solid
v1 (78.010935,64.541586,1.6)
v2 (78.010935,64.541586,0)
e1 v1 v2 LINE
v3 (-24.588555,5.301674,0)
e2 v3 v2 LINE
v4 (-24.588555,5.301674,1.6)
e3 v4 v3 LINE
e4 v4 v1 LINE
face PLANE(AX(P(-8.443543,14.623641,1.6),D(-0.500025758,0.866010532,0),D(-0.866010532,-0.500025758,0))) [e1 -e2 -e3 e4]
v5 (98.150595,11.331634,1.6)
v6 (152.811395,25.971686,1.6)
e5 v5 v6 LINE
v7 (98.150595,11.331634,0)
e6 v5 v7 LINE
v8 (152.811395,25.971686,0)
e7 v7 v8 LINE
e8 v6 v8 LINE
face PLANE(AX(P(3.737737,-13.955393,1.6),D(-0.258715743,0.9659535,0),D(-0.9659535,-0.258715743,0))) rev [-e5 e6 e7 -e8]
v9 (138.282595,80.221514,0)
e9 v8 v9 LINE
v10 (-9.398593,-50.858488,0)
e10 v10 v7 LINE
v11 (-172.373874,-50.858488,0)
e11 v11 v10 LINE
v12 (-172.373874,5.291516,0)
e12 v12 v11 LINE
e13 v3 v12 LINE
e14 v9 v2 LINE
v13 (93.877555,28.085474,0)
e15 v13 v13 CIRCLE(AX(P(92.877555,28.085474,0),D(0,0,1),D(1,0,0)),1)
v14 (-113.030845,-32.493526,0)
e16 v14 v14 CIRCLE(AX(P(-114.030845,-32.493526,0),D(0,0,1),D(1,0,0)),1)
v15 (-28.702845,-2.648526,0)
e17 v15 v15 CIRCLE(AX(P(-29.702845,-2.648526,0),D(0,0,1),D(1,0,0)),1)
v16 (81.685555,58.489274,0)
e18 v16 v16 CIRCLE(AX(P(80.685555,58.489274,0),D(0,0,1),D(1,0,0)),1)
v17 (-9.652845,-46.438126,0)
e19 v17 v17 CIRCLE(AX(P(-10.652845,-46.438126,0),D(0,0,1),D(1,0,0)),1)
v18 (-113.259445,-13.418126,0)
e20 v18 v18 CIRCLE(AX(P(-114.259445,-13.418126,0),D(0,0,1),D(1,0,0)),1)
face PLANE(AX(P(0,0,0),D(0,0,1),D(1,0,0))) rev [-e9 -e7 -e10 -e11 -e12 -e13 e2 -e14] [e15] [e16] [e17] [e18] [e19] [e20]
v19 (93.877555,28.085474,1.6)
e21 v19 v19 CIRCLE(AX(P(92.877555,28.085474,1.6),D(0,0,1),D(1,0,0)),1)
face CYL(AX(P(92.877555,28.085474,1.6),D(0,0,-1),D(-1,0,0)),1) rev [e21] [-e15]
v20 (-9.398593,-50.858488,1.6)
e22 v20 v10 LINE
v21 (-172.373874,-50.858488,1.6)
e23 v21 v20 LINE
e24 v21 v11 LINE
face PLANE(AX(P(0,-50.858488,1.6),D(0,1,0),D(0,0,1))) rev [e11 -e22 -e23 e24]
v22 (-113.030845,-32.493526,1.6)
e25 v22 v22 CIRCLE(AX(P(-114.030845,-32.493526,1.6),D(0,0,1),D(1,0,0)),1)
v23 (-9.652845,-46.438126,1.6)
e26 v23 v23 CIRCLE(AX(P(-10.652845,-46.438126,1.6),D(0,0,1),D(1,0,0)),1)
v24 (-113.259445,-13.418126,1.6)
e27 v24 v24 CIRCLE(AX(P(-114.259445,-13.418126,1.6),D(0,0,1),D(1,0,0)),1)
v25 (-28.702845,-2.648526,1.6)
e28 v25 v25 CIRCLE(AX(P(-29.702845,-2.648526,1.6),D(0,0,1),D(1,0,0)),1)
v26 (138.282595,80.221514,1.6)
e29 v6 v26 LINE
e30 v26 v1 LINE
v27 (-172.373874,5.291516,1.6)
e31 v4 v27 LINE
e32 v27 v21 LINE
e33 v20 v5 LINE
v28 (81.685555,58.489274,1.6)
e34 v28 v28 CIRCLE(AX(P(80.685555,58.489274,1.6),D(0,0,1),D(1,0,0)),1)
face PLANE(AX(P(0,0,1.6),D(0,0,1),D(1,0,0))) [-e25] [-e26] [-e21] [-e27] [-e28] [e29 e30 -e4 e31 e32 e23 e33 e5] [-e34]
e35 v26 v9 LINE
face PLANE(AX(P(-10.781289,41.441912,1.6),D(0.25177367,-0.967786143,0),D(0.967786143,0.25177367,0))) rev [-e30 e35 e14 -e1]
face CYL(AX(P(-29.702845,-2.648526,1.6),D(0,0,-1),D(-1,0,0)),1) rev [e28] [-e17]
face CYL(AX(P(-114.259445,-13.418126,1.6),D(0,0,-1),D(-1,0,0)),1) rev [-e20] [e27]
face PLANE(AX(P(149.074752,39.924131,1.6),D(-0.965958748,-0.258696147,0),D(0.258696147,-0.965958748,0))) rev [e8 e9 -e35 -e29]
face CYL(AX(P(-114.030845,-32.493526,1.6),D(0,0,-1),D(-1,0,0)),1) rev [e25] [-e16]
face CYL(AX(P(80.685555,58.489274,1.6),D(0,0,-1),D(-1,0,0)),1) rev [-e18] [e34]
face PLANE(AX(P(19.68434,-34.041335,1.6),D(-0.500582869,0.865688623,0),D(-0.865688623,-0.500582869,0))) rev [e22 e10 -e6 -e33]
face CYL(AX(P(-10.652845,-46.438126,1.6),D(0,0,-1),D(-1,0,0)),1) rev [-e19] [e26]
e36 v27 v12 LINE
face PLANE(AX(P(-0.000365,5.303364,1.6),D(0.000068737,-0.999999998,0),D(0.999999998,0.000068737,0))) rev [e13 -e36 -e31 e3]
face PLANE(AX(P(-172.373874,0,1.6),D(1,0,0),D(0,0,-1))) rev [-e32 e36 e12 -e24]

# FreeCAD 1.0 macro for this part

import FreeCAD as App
import Part
import Sketcher

V = App.Vector
Q = App.Units.Quantity


def add_polygon(sketch, points):
    """Adds a closed chain of lines whose ends are joined by coincident constraints."""
    first, n = sketch.GeometryCount, len(points)
    for a, b in zip(points, points[1:] + points[:1]):
        sketch.addGeometry(Part.LineSegment(App.Vector(*a, 0), App.Vector(*b, 0)), False)
    for i in range(n):
        sketch.addConstraint(Sketcher.Constraint("Coincident", first + i, 2, first + (i + 1) % n, 1))

doc = App.newDocument("Part")
params = doc.addObject("Spreadsheet::Sheet", "Params")
for row, (alias, value) in enumerate([
    ("sketch1_diameter", "2 mm"),
    ("pad1_length", "1.6 mm"),
], start=1):
    params.set(f"A{row}", alias)
    params.set(f"B{row}", "=" + value)
    params.setAlias(f"B{row}", alias)

body = doc.addObject("PartDesign::Body", "Body")

# Sketch on XY plane
sketch1 = body.newObject("Sketcher::SketchObject", "Sketch")
sketch1.AttachmentSupport = (doc.getObject("XY_Plane"), [""])
sketch1.MapMode = "FlatFace"
add_polygon(sketch1, [(98.2, 11.3), (152.8, 26), (138.3, 80.2), (78, 64.5), (-24.6, 5.3), (-151.6, 5.3), (-172.4, 5.3), (-172.4, -50.9), (-9.4, -50.9)])  # lines 0-8
sketch1.addGeometry(Part.Circle(V(-114, -32.5, 0), V(0, 0, 1), 1), False)  # 9
sketch1.addGeometry(Part.Circle(V(-114.3, -13.4, 0), V(0, 0, 1), 1), False)  # 10
sketch1.addGeometry(Part.Circle(V(-29.7, -2.6, 0), V(0, 0, 1), 1), False)  # 11
sketch1.addGeometry(Part.Circle(V(-10.7, -46.4, 0), V(0, 0, 1), 1), False)  # 12
sketch1.addGeometry(Part.Circle(V(92.9, 28.1, 0), V(0, 0, 1), 1), False)  # 13
sketch1.addGeometry(Part.Circle(V(80.7, 58.5, 0), V(0, 0, 1), 1), False)  # 14
sketch1.addConstraint([
    Sketcher.Constraint("Vertical", 6),
    Sketcher.Constraint("Horizontal", 7),
    Sketcher.Constraint("Equal", 9, 10),
    Sketcher.Constraint("Equal", 10, 11),
    Sketcher.Constraint("Equal", 11, 12),
    Sketcher.Constraint("Equal", 12, 13),
    Sketcher.Constraint("Equal", 13, 14),
    Sketcher.Constraint("Parallel", 4, 5),
    Sketcher.Constraint("Diameter", 9, Q("2 mm")),
    Sketcher.Constraint("DistanceX", 11, 3, 12, 3, Q("19.05 mm")),
    Sketcher.Constraint("DistanceY", 12, 3, 10, 3, Q("33.02 mm")),
    Sketcher.Constraint("DistanceX", 9, 3, 11, 3, Q("84.328 mm")),
    Sketcher.Constraint("DistanceY", 9, 3, 11, 3, Q("29.845 mm")),
    Sketcher.Constraint("DistanceY", 11, 3, 13, 3, Q("30.734 mm")),
    Sketcher.Constraint("DistanceX", 10, 3, 13, 3, Q("207.137 mm")),
    Sketcher.Constraint("DistanceX", 14, 3, 13, 3, Q("12.192 mm")),
    Sketcher.Constraint("DistanceX", 8, 2, 1, 2, Q("40.132 mm")),
    Sketcher.Constraint("DistanceX", 7, 1, 7, 2, Q("162.975281 mm")),
    Sketcher.Constraint("DistanceX", 10, 3, 9, 3, Q("0.2286 mm")),
    Sketcher.Constraint("DistanceY", 9, 3, 10, 3, Q("19.0754 mm")),
    Sketcher.Constraint("DistanceY", 13, 3, 14, 3, Q("30.4038 mm")),
    Sketcher.Constraint("DistanceX", 1, 2, 0, 2, Q("14.5288 mm")),
    Sketcher.Constraint("DistanceY", 0, 2, 2, 2, Q("38.5699 mm")),
    Sketcher.Constraint("DistanceY", 11, 3, 3, 2, Q("7.9502 mm")),
    Sketcher.Constraint("Distance", 1, Q("56.161641 mm")),
    Sketcher.Constraint("Distance", 2, Q("62.27787 mm")),
    Sketcher.Constraint("Distance", 3, Q("118.473721 mm")),
    Sketcher.Constraint("Distance", 8, Q("124.235418 mm")),
    Sketcher.Constraint("DistanceY", 6, 2, 6, 1, Q("56.150004 mm")),
    Sketcher.Constraint("DistanceX", 13, 3, 0, 2, Q("59.93384 mm")),
    Sketcher.Constraint("DistanceY", 0, 2, 13, 3, Q("2.113788 mm")),
    Sketcher.Constraint("DistanceY", 10, 3, 4, 2, Q("18.711069 mm")),
    Sketcher.Constraint("DistanceX", 5, 2, 10, 3, Q("58.114429 mm")),
    Sketcher.Constraint("Distance", 4, Q("127.020203 mm")),
    Sketcher.Constraint("DistanceX", 9, 3, -1, 1, Q("114.030845 mm")),
    Sketcher.Constraint("DistanceY", 9, 3, -1, 1, Q("32.493526 mm")),
])
sketch1.setExpression("Constraints[17]", "Params.sketch1_diameter")
pad1 = body.newObject("PartDesign::Pad", "Pad")
pad1.Profile = sketch1
pad1.setExpression("Length", "Params.pad1_length")

doc.recompute()
